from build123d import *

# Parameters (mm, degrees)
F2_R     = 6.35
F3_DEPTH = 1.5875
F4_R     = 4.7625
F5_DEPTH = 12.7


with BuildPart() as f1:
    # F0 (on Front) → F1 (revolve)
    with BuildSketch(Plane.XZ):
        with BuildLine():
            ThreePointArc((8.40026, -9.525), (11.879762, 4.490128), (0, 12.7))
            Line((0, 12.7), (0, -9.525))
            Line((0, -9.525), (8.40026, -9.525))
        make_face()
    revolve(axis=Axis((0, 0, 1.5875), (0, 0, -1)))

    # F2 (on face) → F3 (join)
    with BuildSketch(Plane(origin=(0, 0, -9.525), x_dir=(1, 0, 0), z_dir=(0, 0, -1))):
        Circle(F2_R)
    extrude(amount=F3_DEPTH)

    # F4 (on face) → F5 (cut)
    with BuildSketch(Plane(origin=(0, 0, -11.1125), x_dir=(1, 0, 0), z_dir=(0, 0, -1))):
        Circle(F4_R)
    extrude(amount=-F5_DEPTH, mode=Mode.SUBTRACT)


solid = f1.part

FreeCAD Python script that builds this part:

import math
import FreeCAD as App
import Part
import Sketcher
from FreeCAD import Vector
Q = App.Units.Quantity

doc = App.newDocument("Part")
body = doc.addObject("PartDesign::Body", "Body")

sketch1 = body.newObject("Sketcher::SketchObject", "Sketch")
sketch1.AttachmentSupport = (doc.getObject("XZ_Plane"), [""])
sketch1.MapMode = "FlatFace"
sketch1.addGeometry([
    Part.ArcOfCircle(Part.Circle(Vector(0, 0, 0), Vector(0, 0, 1), 13), math.radians(-49), math.radians(90)),
    Part.LineSegment(Vector(0, 13, 0), Vector(0, -10, 0)),
    Part.LineSegment(Vector(0, -10, 0), Vector(8, -10, 0)),
], False)
sketch1.addConstraint([
    Sketcher.Constraint("Coincident", 0, 2, 1, 1),
    Sketcher.Constraint("Coincident", 1, 2, 2, 1),
    Sketcher.Constraint("Coincident", 2, 2, 0, 1),
    Sketcher.Constraint("Vertical", 1),
    Sketcher.Constraint("Horizontal", 2),
    Sketcher.Constraint("Coincident", 0, 3, -1, 1),
    Sketcher.Constraint("PointOnObject", 0, 2, -2),
    Sketcher.Constraint("Radius", 0, Q("0.5 in")),
    Sketcher.Constraint("DistanceY", 1, 2, 1, 1, Q("0.875 in")),
])
revolution = body.newObject("PartDesign::Revolution", "Revolution")
revolution.Profile = sketch1
revolution.ReferenceAxis = (sketch1, ["V_Axis"])
revolution.Angle = 360

sketch2 = body.newObject("Sketcher::SketchObject", "Sketch001")
sketch2.AttachmentSupport = (doc.getObject("XY_Plane"), [""])
sketch2.MapMode = "FlatFace"
sketch2.AttachmentOffset = App.Placement(Vector(0, 0, -0.375 * 25.4), App.Rotation())
sketch2.addGeometry(Part.Circle(Vector(0, 0, 0), Vector(0, 0, 1), 6), False)
sketch2.addConstraint([
    Sketcher.Constraint("Coincident", 0, 3, -1, 1),
    Sketcher.Constraint("Diameter", 0, Q("0.5 in")),
])
pad1 = body.newObject("PartDesign::Pad", "Pad")
pad1.Profile = sketch2
pad1.Length = Q("0.0625 in")
pad1.Reversed = True

sketch3 = body.newObject("Sketcher::SketchObject", "Sketch002")
sketch3.AttachmentSupport = (doc.getObject("XY_Plane"), [""])
sketch3.MapMode = "FlatFace"
sketch3.AttachmentOffset = App.Placement(Vector(0, 0, -0.4375 * 25.4), App.Rotation())
sketch3.addGeometry(Part.Circle(Vector(0, 0, 0), Vector(0, 0, 1), 4.8), False)
sketch3.addConstraint([
    Sketcher.Constraint("Coincident", 0, 3, -1, 1),
    Sketcher.Constraint("Diameter", 0, Q("0.375 in")),
])
pocket1 = body.newObject("PartDesign::Pocket", "Pocket")
pocket1.Profile = sketch3
pocket1.Length = Q("0.5 in")
pocket1.Reversed = True

doc.recompute()
